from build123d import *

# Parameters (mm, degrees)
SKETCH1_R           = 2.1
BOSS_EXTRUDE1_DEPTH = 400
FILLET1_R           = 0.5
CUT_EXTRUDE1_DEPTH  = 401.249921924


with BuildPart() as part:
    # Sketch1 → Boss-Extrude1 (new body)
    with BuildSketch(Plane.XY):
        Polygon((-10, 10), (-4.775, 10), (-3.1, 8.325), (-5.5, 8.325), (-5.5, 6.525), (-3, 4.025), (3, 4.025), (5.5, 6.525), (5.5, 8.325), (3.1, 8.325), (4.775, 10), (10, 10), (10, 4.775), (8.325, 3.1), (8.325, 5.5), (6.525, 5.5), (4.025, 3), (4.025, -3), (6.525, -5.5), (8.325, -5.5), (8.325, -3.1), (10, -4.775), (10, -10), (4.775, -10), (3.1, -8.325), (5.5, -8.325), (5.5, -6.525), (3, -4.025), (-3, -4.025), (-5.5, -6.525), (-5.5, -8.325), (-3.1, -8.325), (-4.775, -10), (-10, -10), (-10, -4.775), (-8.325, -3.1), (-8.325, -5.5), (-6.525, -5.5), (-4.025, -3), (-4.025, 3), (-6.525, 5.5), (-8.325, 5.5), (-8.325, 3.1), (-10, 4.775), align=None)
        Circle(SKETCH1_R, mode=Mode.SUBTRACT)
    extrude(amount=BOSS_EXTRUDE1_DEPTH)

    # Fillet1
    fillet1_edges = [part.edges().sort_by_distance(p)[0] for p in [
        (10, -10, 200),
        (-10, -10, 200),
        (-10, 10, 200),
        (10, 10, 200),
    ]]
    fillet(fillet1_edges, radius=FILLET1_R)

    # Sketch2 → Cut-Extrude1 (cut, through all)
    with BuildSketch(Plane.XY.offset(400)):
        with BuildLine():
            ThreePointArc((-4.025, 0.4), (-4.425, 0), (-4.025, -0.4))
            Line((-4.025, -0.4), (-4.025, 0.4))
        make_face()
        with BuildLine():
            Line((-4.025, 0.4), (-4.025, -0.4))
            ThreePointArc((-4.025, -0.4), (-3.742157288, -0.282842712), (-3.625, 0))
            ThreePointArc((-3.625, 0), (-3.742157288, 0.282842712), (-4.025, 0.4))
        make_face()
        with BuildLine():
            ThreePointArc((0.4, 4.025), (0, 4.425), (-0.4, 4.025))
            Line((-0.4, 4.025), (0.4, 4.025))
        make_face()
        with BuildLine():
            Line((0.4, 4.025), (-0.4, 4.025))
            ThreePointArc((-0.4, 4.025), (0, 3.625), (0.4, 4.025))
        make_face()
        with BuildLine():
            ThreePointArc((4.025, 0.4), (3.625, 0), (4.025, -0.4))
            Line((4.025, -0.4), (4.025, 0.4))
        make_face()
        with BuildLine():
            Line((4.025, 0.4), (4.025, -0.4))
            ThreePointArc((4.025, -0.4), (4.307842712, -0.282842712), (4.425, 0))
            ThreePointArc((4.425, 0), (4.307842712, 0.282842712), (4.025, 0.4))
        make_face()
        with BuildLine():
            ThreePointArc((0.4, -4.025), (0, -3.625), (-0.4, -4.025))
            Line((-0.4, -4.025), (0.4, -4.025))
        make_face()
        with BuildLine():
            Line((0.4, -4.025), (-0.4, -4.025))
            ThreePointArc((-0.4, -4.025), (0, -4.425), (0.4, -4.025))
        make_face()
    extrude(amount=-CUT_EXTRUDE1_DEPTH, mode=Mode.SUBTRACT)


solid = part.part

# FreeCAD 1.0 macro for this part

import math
import FreeCAD as App
import Part
import Sketcher
from FreeCAD import Vector
Q = App.Units.Quantity


def edges_at(feature, points):
    """Names of the edges that pass closest to the given points."""
    edges = feature.Shape.Edges
    near = lambda p: min(range(len(edges)), key=lambda i: edges[i].distToShape(Part.Vertex(*p))[0])
    return sorted({f"Edge{near(p) + 1}" for p in points})

doc = App.newDocument("Part")
params = doc.addObject("Spreadsheet::Sheet", "Params")
for row, (alias, value) in enumerate([
    ("sketch1_diameter", "4.2 mm"),
    ("sketch1_width", "6 mm"),
    ("sketch1_width2", "1.8 mm"),
    ("sketch1_width3", "2.4 mm"),
    ("pad1_length", "400 mm"),
    ("fillet_radius", "0.5 mm"),
    ("sketch2_diameter", "0.8 mm"),
], start=1):
    params.set(f"A{row}", alias)
    params.set(f"B{row}", "=" + value)
    params.setAlias(f"B{row}", alias)

body = doc.addObject("PartDesign::Body", "Body")

# Sketch on XY plane
sketch1 = body.newObject("Sketcher::SketchObject", "Sketch")
sketch1.AttachmentSupport = (doc.getObject("XY_Plane"), [""])
sketch1.MapMode = "FlatFace"
sketch1.addGeometry([
    Part.LineSegment(Vector(-4.775, 10, 0), Vector(-10, 10, 0)),  # 0
    Part.LineSegment(Vector(-10, 10, 0), Vector(-10, 4.775, 0)),  # 1
    Part.LineSegment(Vector(-10, 4.775, 0), Vector(-8.325, 3.1, 0)),  # 2
    Part.LineSegment(Vector(-8.325, 3.1, 0), Vector(-8.325, 5.5, 0)),  # 3
    Part.LineSegment(Vector(-8.325, 5.5, 0), Vector(-6.525, 5.5, 0)),  # 4
    Part.LineSegment(Vector(-6.525, 5.5, 0), Vector(-4.025, 3, 0)),  # 5
    Part.LineSegment(Vector(-4.025, 3, 0), Vector(-4.025, -3, 0)),  # 6
    Part.LineSegment(Vector(-4.025, -3, 0), Vector(-6.525, -5.5, 0)),  # 7
    Part.LineSegment(Vector(-6.525, -5.5, 0), Vector(-8.325, -5.5, 0)),  # 8
    Part.LineSegment(Vector(-8.325, -5.5, 0), Vector(-8.325, -3.1, 0)),  # 9
    Part.LineSegment(Vector(-8.325, -3.1, 0), Vector(-10, -4.775, 0)),  # 10
    Part.LineSegment(Vector(-10, -4.775, 0), Vector(-10, -10, 0)),  # 11
    Part.LineSegment(Vector(-10, -10, 0), Vector(-4.775, -10, 0)),  # 12
    Part.LineSegment(Vector(-4.775, -10, 0), Vector(-3.1, -8.325, 0)),  # 13
    Part.LineSegment(Vector(-3.1, -8.325, 0), Vector(-5.5, -8.325, 0)),  # 14
    Part.LineSegment(Vector(-5.5, -8.325, 0), Vector(-5.5, -6.525, 0)),  # 15
    Part.LineSegment(Vector(-5.5, -6.525, 0), Vector(-3, -4.025, 0)),  # 16
    Part.LineSegment(Vector(-3, -4.025, 0), Vector(3, -4.025, 0)),  # 17
    Part.LineSegment(Vector(3, -4.025, 0), Vector(5.5, -6.525, 0)),  # 18
    Part.LineSegment(Vector(5.5, -6.525, 0), Vector(5.5, -8.325, 0)),  # 19
    Part.LineSegment(Vector(5.5, -8.325, 0), Vector(3.1, -8.325, 0)),  # 20
    Part.LineSegment(Vector(3.1, -8.325, 0), Vector(4.775, -10, 0)),  # 21
    Part.LineSegment(Vector(4.775, -10, 0), Vector(10, -10, 0)),  # 22
    Part.LineSegment(Vector(10, -10, 0), Vector(10, -4.775, 0)),  # 23
    Part.LineSegment(Vector(10, -4.775, 0), Vector(8.325, -3.1, 0)),  # 24
    Part.LineSegment(Vector(8.325, -3.1, 0), Vector(8.325, -5.5, 0)),  # 25
    Part.LineSegment(Vector(8.325, -5.5, 0), Vector(6.525, -5.5, 0)),  # 26
    Part.LineSegment(Vector(6.525, -5.5, 0), Vector(4.025, -3, 0)),  # 27
    Part.LineSegment(Vector(4.025, -3, 0), Vector(4.025, 3, 0)),  # 28
    Part.LineSegment(Vector(4.025, 3, 0), Vector(6.525, 5.5, 0)),  # 29
    Part.LineSegment(Vector(6.525, 5.5, 0), Vector(8.325, 5.5, 0)),  # 30
    Part.LineSegment(Vector(8.325, 5.5, 0), Vector(8.325, 3.1, 0)),  # 31
    Part.LineSegment(Vector(8.325, 3.1, 0), Vector(10, 4.775, 0)),  # 32
    Part.LineSegment(Vector(10, 4.775, 0), Vector(10, 10, 0)),  # 33
    Part.LineSegment(Vector(10, 10, 0), Vector(4.775, 10, 0)),  # 34
    Part.LineSegment(Vector(4.775, 10, 0), Vector(3.1, 8.325, 0)),  # 35
    Part.LineSegment(Vector(3.1, 8.325, 0), Vector(5.5, 8.325, 0)),  # 36
    Part.LineSegment(Vector(5.5, 8.325, 0), Vector(5.5, 6.525, 0)),  # 37
    Part.LineSegment(Vector(5.5, 6.525, 0), Vector(3, 4.025, 0)),  # 38
    Part.LineSegment(Vector(3, 4.025, 0), Vector(-3, 4.025, 0)),  # 39
    Part.LineSegment(Vector(-3, 4.025, 0), Vector(-5.5, 6.525, 0)),  # 40
    Part.LineSegment(Vector(-5.5, 6.525, 0), Vector(-5.5, 8.325, 0)),  # 41
    Part.LineSegment(Vector(-5.5, 8.325, 0), Vector(-3.1, 8.325, 0)),  # 42
    Part.LineSegment(Vector(-3.1, 8.325, 0), Vector(-4.775, 10, 0)),  # 43
    Part.Circle(Vector(0, 0, 0), Vector(0, 0, 1), 2.1),  # 44
], False)
sketch1.addConstraint([
    Sketcher.Constraint("Coincident", 0, 2, 1, 1),
    Sketcher.Constraint("Coincident", 1, 2, 2, 1),
    Sketcher.Constraint("Coincident", 2, 2, 3, 1),
    Sketcher.Constraint("Coincident", 3, 2, 4, 1),
    Sketcher.Constraint("Coincident", 4, 2, 5, 1),
    Sketcher.Constraint("Coincident", 5, 2, 6, 1),
    Sketcher.Constraint("Coincident", 6, 2, 7, 1),
    Sketcher.Constraint("Coincident", 7, 2, 8, 1),
    Sketcher.Constraint("Coincident", 8, 2, 9, 1),
    Sketcher.Constraint("Coincident", 9, 2, 10, 1),
    Sketcher.Constraint("Coincident", 10, 2, 11, 1),
    Sketcher.Constraint("Coincident", 11, 2, 12, 1),
    Sketcher.Constraint("Coincident", 12, 2, 13, 1),
    Sketcher.Constraint("Coincident", 13, 2, 14, 1),
    Sketcher.Constraint("Coincident", 14, 2, 15, 1),
    Sketcher.Constraint("Coincident", 15, 2, 16, 1),
    Sketcher.Constraint("Coincident", 16, 2, 17, 1),
    Sketcher.Constraint("Coincident", 17, 2, 18, 1),
    Sketcher.Constraint("Coincident", 18, 2, 19, 1),
    Sketcher.Constraint("Coincident", 19, 2, 20, 1),
    Sketcher.Constraint("Coincident", 20, 2, 21, 1),
    Sketcher.Constraint("Coincident", 21, 2, 22, 1),
    Sketcher.Constraint("Coincident", 22, 2, 23, 1),
    Sketcher.Constraint("Coincident", 23, 2, 24, 1),
    Sketcher.Constraint("Coincident", 24, 2, 25, 1),
    Sketcher.Constraint("Coincident", 25, 2, 26, 1),
    Sketcher.Constraint("Coincident", 26, 2, 27, 1),
    Sketcher.Constraint("Coincident", 27, 2, 28, 1),
    Sketcher.Constraint("Coincident", 28, 2, 29, 1),
    Sketcher.Constraint("Coincident", 29, 2, 30, 1),
    Sketcher.Constraint("Coincident", 30, 2, 31, 1),
    Sketcher.Constraint("Coincident", 31, 2, 32, 1),
    Sketcher.Constraint("Coincident", 32, 2, 33, 1),
    Sketcher.Constraint("Coincident", 33, 2, 34, 1),
    Sketcher.Constraint("Coincident", 34, 2, 35, 1),
    Sketcher.Constraint("Coincident", 35, 2, 36, 1),
    Sketcher.Constraint("Coincident", 36, 2, 37, 1),
    Sketcher.Constraint("Coincident", 37, 2, 38, 1),
    Sketcher.Constraint("Coincident", 38, 2, 39, 1),
    Sketcher.Constraint("Coincident", 39, 2, 40, 1),
    Sketcher.Constraint("Coincident", 40, 2, 41, 1),
    Sketcher.Constraint("Coincident", 41, 2, 42, 1),
    Sketcher.Constraint("Coincident", 42, 2, 43, 1),
    Sketcher.Constraint("Coincident", 43, 2, 0, 1),
    Sketcher.Constraint("Horizontal", 0),
    Sketcher.Constraint("Vertical", 1),
    Sketcher.Constraint("Vertical", 3),
    Sketcher.Constraint("Horizontal", 4),
    Sketcher.Constraint("Vertical", 6),
    Sketcher.Constraint("Horizontal", 8),
    Sketcher.Constraint("Vertical", 9),
    Sketcher.Constraint("Vertical", 11),
    Sketcher.Constraint("Horizontal", 12),
    Sketcher.Constraint("Horizontal", 14),
    Sketcher.Constraint("Vertical", 15),
    Sketcher.Constraint("Horizontal", 17),
    Sketcher.Constraint("Vertical", 19),
    Sketcher.Constraint("Horizontal", 20),
    Sketcher.Constraint("Horizontal", 22),
    Sketcher.Constraint("Vertical", 23),
    Sketcher.Constraint("Vertical", 25),
    Sketcher.Constraint("Horizontal", 26),
    Sketcher.Constraint("Vertical", 28),
    Sketcher.Constraint("Horizontal", 30),
    Sketcher.Constraint("Vertical", 31),
    Sketcher.Constraint("Vertical", 33),
    Sketcher.Constraint("Horizontal", 34),
    Sketcher.Constraint("Horizontal", 36),
    Sketcher.Constraint("Vertical", 37),
    Sketcher.Constraint("Horizontal", 39),
    Sketcher.Constraint("Vertical", 41),
    Sketcher.Constraint("Horizontal", 42),
    Sketcher.Constraint("Coincident", 44, 3, -1, 1),
    Sketcher.Constraint("Symmetric", 0, 2, 22, 2, -1, 1),
    Sketcher.Constraint("Symmetric", 2, 2, 24, 2, -1, 1),
    Sketcher.Constraint("Symmetric", 4, 2, 26, 2, -1, 1),
    Sketcher.Constraint("Symmetric", 5, 2, 27, 2, -1, 1),
    Sketcher.Constraint("Symmetric", 7, 2, 29, 2, -1, 1),
    Sketcher.Constraint("Symmetric", 9, 2, 31, 2, -1, 1),
    Sketcher.Constraint("Symmetric", 10, 2, 32, 2, -1, 1),
    Sketcher.Constraint("Symmetric", 12, 2, 34, 2, -1, 1),
    Sketcher.Constraint("Symmetric", 13, 2, 35, 2, -1, 1),
    Sketcher.Constraint("Symmetric", 15, 2, 37, 2, -1, 1),
    Sketcher.Constraint("Symmetric", 16, 2, 38, 2, -1, 1),
    Sketcher.Constraint("Symmetric", 18, 2, 40, 2, -1, 1),
    Sketcher.Constraint("Symmetric", 20, 2, 42, 2, -1, 1),
    Sketcher.Constraint("Symmetric", 15, 2, 18, 2, -2),
    Sketcher.Constraint("Symmetric", 13, 2, 20, 2, -2),
    Sketcher.Constraint("Symmetric", 12, 2, 21, 2, -2),
    Sketcher.Constraint("Symmetric", 10, 2, 23, 2, -2),
    Sketcher.Constraint("Symmetric", 9, 2, 24, 2, -2),
    Sketcher.Constraint("Symmetric", 7, 2, 26, 2, -2),
    Sketcher.Constraint("Parallel", 2, 5),
    Sketcher.Constraint("Perpendicular", 5, 7),
    Sketcher.Constraint("Parallel", 7, 10),
    Sketcher.Constraint("Parallel", 10, 13),
    Sketcher.Constraint("Parallel", 13, 16),
    Sketcher.Constraint("Perpendicular", 16, 18),
    Sketcher.Constraint("Parallel", 18, 21),
    Sketcher.Constraint("Perpendicular", 27, 29),
    Sketcher.Constraint("Perpendicular", 38, 40),
    Sketcher.Constraint("Parallel", 40, 43),
    Sketcher.Constraint("Equal", 34, 1),
    Sketcher.Constraint("Equal", 42, 3),
    Sketcher.Constraint("Equal", 39, 6),
    Sketcher.Constraint("Equal", 30, 15),
    Sketcher.Constraint("Equal", 10, 13),
    Sketcher.Constraint("Equal", 7, 16),
    Sketcher.Constraint("Diameter", 44, Q("4.2 mm")),
    Sketcher.Constraint("DistanceX", 17, 1, 17, 2, Q("6 mm")),
    Sketcher.Constraint("DistanceX", 4, 1, 4, 2, Q("1.8 mm")),
    Sketcher.Constraint("DistanceX", 14, 2, 14, 1, Q("2.4 mm")),
    Sketcher.Constraint("DistanceX", 0, 2, -1, 1, Q("10 mm")),
    Sketcher.Constraint("DistanceY", -1, 1, 2, 2, Q("3.1 mm")),
    Sketcher.Constraint("DistanceX", 0, 2, 0, 1, Q("5.225 mm")),
])
sketch1.setExpression("Constraints[108]", "Params.sketch1_diameter")
sketch1.setExpression("Constraints[109]", "Params.sketch1_width")
sketch1.setExpression("Constraints[110]", "Params.sketch1_width2")
sketch1.setExpression("Constraints[111]", "Params.sketch1_width3")
pad1 = body.newObject("PartDesign::Pad", "Pad")
pad1.Profile = sketch1
pad1.setExpression("Length", "Params.pad1_length")
doc.recompute()

fillet = body.newObject("PartDesign::Fillet", "Fillet")
fillet.Base = (pad1, edges_at(pad1, [
    (10, -10, 200),
    (-10, -10, 200),
    (-10, 10, 200),
    (10, 10, 200),
]))
fillet.setExpression("Radius", "Params.fillet_radius")

# Sketch on XY plane
sketch2 = body.newObject("Sketcher::SketchObject", "Sketch001")
sketch2.AttachmentSupport = (doc.getObject("XY_Plane"), [""])
sketch2.MapMode = "FlatFace"
sketch2.AttachmentOffset = App.Placement(Vector(0, 0, 400), App.Rotation())
sketch2.addGeometry([
    Part.ArcOfCircle(Part.Circle(Vector(-4.025, 0, 0), Vector(0, 0, 1), 0.4), math.radians(90), math.radians(270)),  # 0
    Part.ArcOfCircle(Part.Circle(Vector(-4.025, 0, 0), Vector(0, 0, 1), 0.4), math.radians(-90), math.radians(0)),  # 1
    Part.ArcOfCircle(Part.Circle(Vector(-4.025, 0, 0), Vector(0, 0, 1), 0.4), math.radians(0), math.radians(90)),  # 2
    Part.Circle(Vector(0, 4.025, 0), Vector(0, 0, 1), 0.4),  # 3
    Part.ArcOfCircle(Part.Circle(Vector(4.025, 0, 0), Vector(0, 0, 1), 0.4), math.radians(90), math.radians(270)),  # 4
    Part.ArcOfCircle(Part.Circle(Vector(4.025, 0, 0), Vector(0, 0, 1), 0.4), math.radians(-90), math.radians(0)),  # 5
    Part.ArcOfCircle(Part.Circle(Vector(4.025, 0, 0), Vector(0, 0, 1), 0.4), math.radians(0), math.radians(90)),  # 6
    Part.Circle(Vector(0, -4.025, 0), Vector(0, 0, 1), 0.4),  # 7
], False)
sketch2.addConstraint([
    Sketcher.Constraint("Tangent", 0, 2, 1, 1),
    Sketcher.Constraint("Tangent", 1, 2, 2, 1),
    Sketcher.Constraint("Tangent", 2, 2, 0, 1),
    Sketcher.Constraint("Tangent", 4, 2, 5, 1),
    Sketcher.Constraint("Tangent", 5, 2, 6, 1),
    Sketcher.Constraint("Tangent", 6, 2, 4, 1),
    Sketcher.Constraint("Equal", 2, 3),
    Sketcher.Constraint("Equal", 3, 4),
    Sketcher.Constraint("Equal", 6, 7),
    Sketcher.Constraint("Symmetric", 0, 3, 4, 3, -1, 1),
    Sketcher.Constraint("Symmetric", 3, 3, 7, 3, -1, 1),
    Sketcher.Constraint("Symmetric", 0, 2, 4, 2, -2),
    Sketcher.Constraint("PointOnObject", 3, 3, -2),
    Sketcher.Constraint("PointOnObject", 1, 2, -1),
    Sketcher.Constraint("PointOnObject", 5, 2, -1),
    Sketcher.Constraint("Vertical", 2, 3, 0, 2),
    Sketcher.Constraint("Vertical", 0, 2, 2, 2),
    Sketcher.Constraint("Vertical", 4, 2, 6, 2),
    Sketcher.Constraint("Diameter", 3, Q("0.8 mm")),
    Sketcher.Constraint("DistanceX", 0, 3, 4, 3, Q("8.05 mm")),
    Sketcher.Constraint("DistanceY", -1, 1, 3, 3, Q("4.025 mm")),
])
sketch2.setExpression("Constraints[18]", "Params.sketch2_diameter")
pocket1 = body.newObject("PartDesign::Pocket", "Pocket")
pocket1.Profile = sketch2
pocket1.Type = "ThroughAll"

doc.recompute()
